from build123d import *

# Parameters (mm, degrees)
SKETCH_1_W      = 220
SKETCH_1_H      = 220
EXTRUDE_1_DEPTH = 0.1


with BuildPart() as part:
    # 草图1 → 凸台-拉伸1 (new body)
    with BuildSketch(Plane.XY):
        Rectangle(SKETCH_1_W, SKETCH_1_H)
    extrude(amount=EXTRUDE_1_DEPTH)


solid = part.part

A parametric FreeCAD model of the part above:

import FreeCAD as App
import Part
import Sketcher

V = App.Vector
Q = App.Units.Quantity


def add_polygon(sketch, points):
    """Adds a closed chain of lines whose ends are joined by coincident constraints."""
    first, n = sketch.GeometryCount, len(points)
    for a, b in zip(points, points[1:] + points[:1]):
        sketch.addGeometry(Part.LineSegment(App.Vector(*a, 0), App.Vector(*b, 0)), False)
    for i in range(n):
        sketch.addConstraint(Sketcher.Constraint("Coincident", first + i, 2, first + (i + 1) % n, 1))

doc = App.newDocument("Part")
body = doc.addObject("PartDesign::Body", "Body")

# Sketch on XY plane
sketch1 = body.newObject("Sketcher::SketchObject", "Sketch")
sketch1.AttachmentSupport = (doc.getObject("XY_Plane"), [""])
sketch1.MapMode = "FlatFace"
add_polygon(sketch1, [(-110, 110), (-110, -110), (110, -110), (110, 110)])  # lines 0-3
sketch1.addConstraint([
    Sketcher.Constraint("Vertical", 0),
    Sketcher.Constraint("Horizontal", 1),
    Sketcher.Constraint("Vertical", 2),
    Sketcher.Constraint("Horizontal", 3),
    Sketcher.Constraint("Symmetric", 0, 2, 2, 2, -1, 1),
    Sketcher.Constraint("Equal", 3, 0),
    Sketcher.Constraint("DistanceX", 1, 1, 1, 2, Q("220 mm")),
])
pad1 = body.newObject("PartDesign::Pad", "Pad")
pad1.Profile = sketch1
pad1.Length = 0.1

doc.recompute()
